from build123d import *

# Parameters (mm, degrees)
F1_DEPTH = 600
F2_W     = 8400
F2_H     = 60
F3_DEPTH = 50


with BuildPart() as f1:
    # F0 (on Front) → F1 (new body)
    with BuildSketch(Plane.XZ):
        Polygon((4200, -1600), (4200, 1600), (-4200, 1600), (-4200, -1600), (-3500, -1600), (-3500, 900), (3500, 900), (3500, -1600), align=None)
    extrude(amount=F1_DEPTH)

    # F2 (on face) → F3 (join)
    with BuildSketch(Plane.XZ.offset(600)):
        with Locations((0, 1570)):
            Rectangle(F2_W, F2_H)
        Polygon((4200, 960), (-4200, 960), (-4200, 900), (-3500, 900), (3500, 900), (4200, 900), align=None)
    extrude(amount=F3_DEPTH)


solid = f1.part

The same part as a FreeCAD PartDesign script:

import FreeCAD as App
import Part
import Sketcher

V = App.Vector

doc = App.newDocument("Part")
body = doc.addObject("PartDesign::Body", "Body")

# Sketch on XZ plane
sketch1 = body.newObject("Sketcher::SketchObject", "Sketch")
sketch1.AttachmentSupport = (doc.getObject("XZ_Plane"), [""])
sketch1.MapMode = "FlatFace"
sketch1.addGeometry([
    Part.LineSegment(V(4200, -1600, 0), V(4200, 1600, 0)),  # 0
    Part.LineSegment(V(4200, 1600, 0), V(-4200, 1600, 0)),  # 1
    Part.LineSegment(V(-4200, 1600, 0), V(-4200, -1600, 0)),  # 2
    Part.LineSegment(V(-4200, -1600, 0), V(-3500, -1600, 0)),  # 3
    Part.LineSegment(V(-3500, -1600, 0), V(-3500, 900, 0)),  # 4
    Part.LineSegment(V(-3500, 900, 0), V(3500, 900, 0)),  # 5
    Part.LineSegment(V(3500, 900, 0), V(3500, -1600, 0)),  # 6
    Part.LineSegment(V(3500, -1600, 0), V(4200, -1600, 0)),  # 7
], False)
sketch1.addConstraint([
    Sketcher.Constraint("Coincident", 0, 2, 1, 1),
    Sketcher.Constraint("Coincident", 1, 2, 2, 1),
    Sketcher.Constraint("Coincident", 2, 2, 3, 1),
    Sketcher.Constraint("Coincident", 3, 2, 4, 1),
    Sketcher.Constraint("Coincident", 4, 2, 5, 1),
    Sketcher.Constraint("Coincident", 5, 2, 6, 1),
    Sketcher.Constraint("Coincident", 6, 2, 7, 1),
    Sketcher.Constraint("Coincident", 7, 2, 0, 1),
    Sketcher.Constraint("Vertical", 0),
    Sketcher.Constraint("Horizontal", 1),
    Sketcher.Constraint("Vertical", 2),
    Sketcher.Constraint("Horizontal", 3),
    Sketcher.Constraint("Vertical", 4),
    Sketcher.Constraint("Horizontal", 5),
    Sketcher.Constraint("Vertical", 6),
    Sketcher.Constraint("Horizontal", 7),
    Sketcher.Constraint("Symmetric", 0, 2, 2, 2, -1, 1),
    Sketcher.Constraint("Symmetric", 3, 2, 6, 2, -2),
    Sketcher.Constraint("DistanceX", 1, 2, 1, 1, 8400.0),
    Sketcher.Constraint("DistanceX", 3, 1, 3, 2, 700.0),
    Sketcher.Constraint("DistanceY", 0, 1, 0, 2, 3200.0),
    Sketcher.Constraint("DistanceY", 4, 1, 4, 2, 2500.0),
])
pad1 = body.newObject("PartDesign::Pad", "Pad")
pad1.Profile = sketch1
pad1.Length = 600

# Sketch on XZ plane
sketch2 = body.newObject("Sketcher::SketchObject", "Sketch001")
sketch2.AttachmentSupport = (doc.getObject("XZ_Plane"), [""])
sketch2.MapMode = "FlatFace"
sketch2.AttachmentOffset = App.Placement(V(0, 0, 600), App.Rotation())
sketch2.addGeometry([
    Part.LineSegment(V(-4200, 1600, 0), V(-4200, 1540, 0)),  # 0
    Part.LineSegment(V(-4200, 1540, 0), V(4200, 1540, 0)),  # 1
    Part.LineSegment(V(4200, 1540, 0), V(4200, 1600, 0)),  # 2
    Part.LineSegment(V(4200, 1600, 0), V(-4200, 1600, 0)),  # 3
    Part.LineSegment(V(4200, 960, 0), V(-4200, 960, 0)),  # 4
    Part.LineSegment(V(-4200, 960, 0), V(-4200, 900, 0)),  # 5
    Part.LineSegment(V(-4200, 900, 0), V(4200, 900, 0)),  # 6
    Part.LineSegment(V(4200, 900, 0), V(4200, 960, 0)),  # 7
], False)
sketch2.addConstraint([
    Sketcher.Constraint("Coincident", 0, 2, 1, 1),
    Sketcher.Constraint("Coincident", 1, 2, 2, 1),
    Sketcher.Constraint("Coincident", 2, 2, 3, 1),
    Sketcher.Constraint("Coincident", 3, 2, 0, 1),
    Sketcher.Constraint("Coincident", 4, 2, 5, 1),
    Sketcher.Constraint("Coincident", 5, 2, 6, 1),
    Sketcher.Constraint("Coincident", 6, 2, 7, 1),
    Sketcher.Constraint("Coincident", 7, 2, 4, 1),
    Sketcher.Constraint("Vertical", 0),
    Sketcher.Constraint("Horizontal", 1),
    Sketcher.Constraint("Vertical", 2),
    Sketcher.Constraint("Horizontal", 3),
    Sketcher.Constraint("Horizontal", 4),
    Sketcher.Constraint("Vertical", 5),
    Sketcher.Constraint("Horizontal", 6),
    Sketcher.Constraint("Vertical", 7),
    Sketcher.Constraint("Vertical", 3, 2, 4, 2),
    Sketcher.Constraint("Vertical", 2, 2, 6, 2),
    Sketcher.Constraint("Equal", 2, 5),
    Sketcher.Constraint("DistanceX", 1, 1, 1, 2, 8400.0),
    Sketcher.Constraint("DistanceY", 0, 2, 0, 1, 60.0),
    Sketcher.Constraint("DistanceX", 0, 2, -1, 1, 4200.0),
    Sketcher.Constraint("DistanceY", -1, 1, 0, 2, 1540.0),
    Sketcher.Constraint("DistanceY", -1, 1, 4, 2, 960.0),
])
pad2 = body.newObject("PartDesign::Pad", "Pad001")
pad2.Profile = sketch2
pad2.Length = 50

doc.recompute()
